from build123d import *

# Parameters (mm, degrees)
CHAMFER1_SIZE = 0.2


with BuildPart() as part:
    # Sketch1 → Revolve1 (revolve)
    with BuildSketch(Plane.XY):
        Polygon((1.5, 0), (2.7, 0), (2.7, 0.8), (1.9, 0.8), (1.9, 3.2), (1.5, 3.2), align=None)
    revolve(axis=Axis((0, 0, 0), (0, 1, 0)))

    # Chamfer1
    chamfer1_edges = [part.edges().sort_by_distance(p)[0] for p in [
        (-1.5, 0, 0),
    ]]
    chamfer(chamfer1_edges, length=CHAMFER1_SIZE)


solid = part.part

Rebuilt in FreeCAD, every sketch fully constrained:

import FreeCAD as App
import Part
import Sketcher

V = App.Vector


def edges_at(feature, points):
    """Names of the edges that pass closest to the given points."""
    edges = feature.Shape.Edges
    near = lambda p: min(range(len(edges)), key=lambda i: edges[i].distToShape(Part.Vertex(*p))[0])
    return sorted({f"Edge{near(p) + 1}" for p in points})


def add_polygon(sketch, points):
    """Adds a closed chain of lines whose ends are joined by coincident constraints."""
    first, n = sketch.GeometryCount, len(points)
    for a, b in zip(points, points[1:] + points[:1]):
        sketch.addGeometry(Part.LineSegment(App.Vector(*a, 0), App.Vector(*b, 0)), False)
    for i in range(n):
        sketch.addConstraint(Sketcher.Constraint("Coincident", first + i, 2, first + (i + 1) % n, 1))

doc = App.newDocument("Part")
body = doc.addObject("PartDesign::Body", "Body")

# Sketch on XY plane
sketch1 = body.newObject("Sketcher::SketchObject", "Sketch")
sketch1.AttachmentSupport = (doc.getObject("XY_Plane"), [""])
sketch1.MapMode = "FlatFace"
add_polygon(sketch1, [(1.5, 0), (2.7, 0), (2.7, 0.8), (1.9, 0.8), (1.9, 3.2), (1.5, 3.2)])  # lines 0-5
sketch1.addConstraint([
    Sketcher.Constraint("Horizontal", 0),
    Sketcher.Constraint("Vertical", 1),
    Sketcher.Constraint("Horizontal", 2),
    Sketcher.Constraint("Vertical", 3),
    Sketcher.Constraint("Horizontal", 4),
    Sketcher.Constraint("Vertical", 5),
    Sketcher.Constraint("PointOnObject", 0, 2, -1),
    Sketcher.Constraint("Equal", 2, 1),
    Sketcher.Constraint("DistanceX", 0, 1, 0, 2, 1.2),
    Sketcher.Constraint("DistanceX", 2, 2, 2, 1, 0.8),
    Sketcher.Constraint("DistanceY", 3, 1, 3, 2, 2.4),
    Sketcher.Constraint("DistanceX", -1, 1, 0, 2, 2.7),
])
revolution = body.newObject("PartDesign::Revolution", "Revolution")
revolution.Profile = sketch1
revolution.ReferenceAxis = (sketch1, ["V_Axis"])
revolution.Angle = 360
doc.recompute()

chamfer = body.newObject("PartDesign::Chamfer", "Chamfer")
chamfer.Base = (revolution, edges_at(revolution, [(-1.5, 0, 0)]))
chamfer.Size = 0.2

doc.recompute()
